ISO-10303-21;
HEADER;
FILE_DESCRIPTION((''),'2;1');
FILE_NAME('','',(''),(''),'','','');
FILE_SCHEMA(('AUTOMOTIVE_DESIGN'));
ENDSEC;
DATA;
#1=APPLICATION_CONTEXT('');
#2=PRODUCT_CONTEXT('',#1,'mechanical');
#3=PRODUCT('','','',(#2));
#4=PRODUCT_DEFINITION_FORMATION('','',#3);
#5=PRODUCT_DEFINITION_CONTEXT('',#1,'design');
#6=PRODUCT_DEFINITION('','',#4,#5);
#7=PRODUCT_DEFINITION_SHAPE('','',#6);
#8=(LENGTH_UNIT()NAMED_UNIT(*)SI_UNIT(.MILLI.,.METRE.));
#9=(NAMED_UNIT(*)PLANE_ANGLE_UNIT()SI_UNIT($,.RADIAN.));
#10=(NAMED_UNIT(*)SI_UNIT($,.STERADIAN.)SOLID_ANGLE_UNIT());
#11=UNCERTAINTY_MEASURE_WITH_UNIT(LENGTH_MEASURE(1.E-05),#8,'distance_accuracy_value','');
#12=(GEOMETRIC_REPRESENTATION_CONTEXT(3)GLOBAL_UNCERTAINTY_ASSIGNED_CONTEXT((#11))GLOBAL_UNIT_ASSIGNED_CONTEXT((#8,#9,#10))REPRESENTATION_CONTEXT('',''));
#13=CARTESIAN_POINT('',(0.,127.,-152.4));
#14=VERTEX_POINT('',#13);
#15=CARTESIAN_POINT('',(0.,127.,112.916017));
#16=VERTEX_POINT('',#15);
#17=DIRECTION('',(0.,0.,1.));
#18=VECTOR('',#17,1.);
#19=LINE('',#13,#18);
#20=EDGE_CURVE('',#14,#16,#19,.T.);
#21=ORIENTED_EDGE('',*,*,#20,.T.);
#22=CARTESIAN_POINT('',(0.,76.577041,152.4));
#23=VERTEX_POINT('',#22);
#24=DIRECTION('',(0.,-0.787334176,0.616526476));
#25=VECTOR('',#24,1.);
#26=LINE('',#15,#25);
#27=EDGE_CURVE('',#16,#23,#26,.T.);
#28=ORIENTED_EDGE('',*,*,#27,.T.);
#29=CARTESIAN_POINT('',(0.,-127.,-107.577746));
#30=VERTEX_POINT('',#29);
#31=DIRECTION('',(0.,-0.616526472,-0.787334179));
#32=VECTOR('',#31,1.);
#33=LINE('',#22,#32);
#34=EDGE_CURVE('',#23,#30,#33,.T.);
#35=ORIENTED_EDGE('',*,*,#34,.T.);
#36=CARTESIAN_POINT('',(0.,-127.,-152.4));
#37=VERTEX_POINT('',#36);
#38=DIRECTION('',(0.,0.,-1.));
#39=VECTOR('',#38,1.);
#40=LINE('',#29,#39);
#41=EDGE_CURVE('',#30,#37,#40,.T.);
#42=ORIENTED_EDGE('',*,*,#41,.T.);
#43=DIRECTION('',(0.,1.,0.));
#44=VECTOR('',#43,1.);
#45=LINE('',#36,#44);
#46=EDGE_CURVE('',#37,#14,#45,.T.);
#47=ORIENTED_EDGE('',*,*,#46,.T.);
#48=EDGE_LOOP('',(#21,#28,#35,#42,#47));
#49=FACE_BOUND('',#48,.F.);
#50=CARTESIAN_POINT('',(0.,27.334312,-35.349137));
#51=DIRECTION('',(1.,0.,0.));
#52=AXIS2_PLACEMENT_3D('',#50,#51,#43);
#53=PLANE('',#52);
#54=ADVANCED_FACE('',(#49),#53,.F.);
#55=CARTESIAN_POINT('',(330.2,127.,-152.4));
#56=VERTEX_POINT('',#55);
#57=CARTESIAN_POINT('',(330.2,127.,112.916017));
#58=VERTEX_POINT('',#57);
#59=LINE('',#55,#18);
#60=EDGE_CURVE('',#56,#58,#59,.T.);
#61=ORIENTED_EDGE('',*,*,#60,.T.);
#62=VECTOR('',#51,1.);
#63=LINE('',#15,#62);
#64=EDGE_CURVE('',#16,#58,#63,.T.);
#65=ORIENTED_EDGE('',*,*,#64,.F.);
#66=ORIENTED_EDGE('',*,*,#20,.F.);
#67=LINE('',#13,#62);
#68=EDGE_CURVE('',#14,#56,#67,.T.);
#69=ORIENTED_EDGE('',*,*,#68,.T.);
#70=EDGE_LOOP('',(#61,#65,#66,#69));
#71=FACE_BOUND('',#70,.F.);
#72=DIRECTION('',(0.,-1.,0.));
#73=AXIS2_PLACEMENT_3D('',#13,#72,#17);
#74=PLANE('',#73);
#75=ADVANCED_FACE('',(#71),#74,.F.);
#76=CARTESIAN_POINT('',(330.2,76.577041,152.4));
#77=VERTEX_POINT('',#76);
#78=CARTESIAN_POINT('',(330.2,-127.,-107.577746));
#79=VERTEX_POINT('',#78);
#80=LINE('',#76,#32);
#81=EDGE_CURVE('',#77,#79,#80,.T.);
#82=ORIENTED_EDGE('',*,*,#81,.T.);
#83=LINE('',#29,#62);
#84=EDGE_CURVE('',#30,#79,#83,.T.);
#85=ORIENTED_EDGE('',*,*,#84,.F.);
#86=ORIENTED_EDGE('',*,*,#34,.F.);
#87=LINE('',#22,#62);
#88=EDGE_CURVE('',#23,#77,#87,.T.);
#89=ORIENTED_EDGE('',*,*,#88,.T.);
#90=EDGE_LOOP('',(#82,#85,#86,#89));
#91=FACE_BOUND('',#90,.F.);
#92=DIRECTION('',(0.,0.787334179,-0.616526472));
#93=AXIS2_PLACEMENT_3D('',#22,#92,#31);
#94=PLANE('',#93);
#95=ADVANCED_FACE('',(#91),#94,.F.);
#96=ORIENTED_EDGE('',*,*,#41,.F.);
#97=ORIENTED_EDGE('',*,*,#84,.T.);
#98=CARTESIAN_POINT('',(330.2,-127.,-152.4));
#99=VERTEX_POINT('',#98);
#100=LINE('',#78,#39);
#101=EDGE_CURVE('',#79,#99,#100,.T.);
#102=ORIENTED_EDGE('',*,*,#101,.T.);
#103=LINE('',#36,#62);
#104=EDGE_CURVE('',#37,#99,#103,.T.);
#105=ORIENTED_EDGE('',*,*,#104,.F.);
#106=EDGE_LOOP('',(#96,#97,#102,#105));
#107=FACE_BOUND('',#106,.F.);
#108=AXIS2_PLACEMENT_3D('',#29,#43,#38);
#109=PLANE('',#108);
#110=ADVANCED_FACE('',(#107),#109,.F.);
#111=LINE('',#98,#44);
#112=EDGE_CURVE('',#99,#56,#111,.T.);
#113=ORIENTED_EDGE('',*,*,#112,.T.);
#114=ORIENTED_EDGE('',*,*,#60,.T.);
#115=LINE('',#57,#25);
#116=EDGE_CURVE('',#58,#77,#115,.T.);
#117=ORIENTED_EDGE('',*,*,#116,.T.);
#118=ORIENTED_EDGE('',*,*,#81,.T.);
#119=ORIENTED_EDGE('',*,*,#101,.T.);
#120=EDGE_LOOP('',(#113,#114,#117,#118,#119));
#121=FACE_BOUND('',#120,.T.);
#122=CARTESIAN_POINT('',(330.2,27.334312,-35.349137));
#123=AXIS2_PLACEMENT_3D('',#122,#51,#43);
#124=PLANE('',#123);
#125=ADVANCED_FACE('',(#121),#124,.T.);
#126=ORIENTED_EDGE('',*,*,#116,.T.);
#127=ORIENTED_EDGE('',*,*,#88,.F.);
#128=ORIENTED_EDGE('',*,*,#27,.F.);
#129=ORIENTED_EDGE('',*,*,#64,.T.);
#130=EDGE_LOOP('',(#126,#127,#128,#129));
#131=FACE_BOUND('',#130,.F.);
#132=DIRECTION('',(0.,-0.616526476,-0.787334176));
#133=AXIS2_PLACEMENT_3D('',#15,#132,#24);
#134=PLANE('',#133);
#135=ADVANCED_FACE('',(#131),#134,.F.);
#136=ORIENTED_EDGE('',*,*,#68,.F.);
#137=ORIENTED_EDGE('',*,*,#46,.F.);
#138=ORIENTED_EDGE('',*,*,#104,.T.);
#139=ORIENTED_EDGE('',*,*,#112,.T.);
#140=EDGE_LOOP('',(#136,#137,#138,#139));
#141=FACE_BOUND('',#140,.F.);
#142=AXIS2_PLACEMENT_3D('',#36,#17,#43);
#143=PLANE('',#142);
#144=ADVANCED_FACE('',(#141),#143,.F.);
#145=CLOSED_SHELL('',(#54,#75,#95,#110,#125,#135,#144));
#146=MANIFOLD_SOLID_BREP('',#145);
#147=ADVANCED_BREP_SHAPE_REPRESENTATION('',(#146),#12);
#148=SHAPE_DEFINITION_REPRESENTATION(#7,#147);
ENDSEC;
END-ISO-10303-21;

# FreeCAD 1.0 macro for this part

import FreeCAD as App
import Part
import Sketcher

V = App.Vector
Q = App.Units.Quantity

doc = App.newDocument("Part")
params = doc.addObject("Spreadsheet::Sheet", "Params")
for row, (alias, value) in enumerate([
    ("sketch1_width", "10 in"),
    ("sketch1_length", "13 in"),
    ("pad1_length", "13 in"),
], start=1):
    params.set(f"A{row}", alias)
    params.set(f"B{row}", "=" + value)
    params.setAlias(f"B{row}", alias)

body = doc.addObject("PartDesign::Body", "Body")

sketch1 = body.newObject("Sketcher::SketchObject", "Sketch")
sketch1.AttachmentSupport = (doc.getObject("YZ_Plane"), [""])
sketch1.MapMode = "FlatFace"
sketch1.addGeometry(Part.LineSegment(V(76.577041, 152.4, 0), V(-127, -107.577746, 0)), False)
sketch1.addGeometry(Part.LineSegment(V(-127, -107.577746, 0), V(-127, -152.4, 0)), False)
sketch1.addGeometry(Part.LineSegment(V(-127, -152.4, 0), V(127, -152.4, 0)), False)
sketch1.addGeometry(Part.LineSegment(V(127, -152.4, 0), V(127, 112.916017, 0)), False)
sketch1.addGeometry(Part.LineSegment(V(127, 112.916017, 0), V(76.577041, 152.4, 0)), False)
sketch1.addConstraint(Sketcher.Constraint("Coincident", 0, 2, 1, 1))
sketch1.addConstraint(Sketcher.Constraint("Coincident", 1, 2, 2, 1))
sketch1.addConstraint(Sketcher.Constraint("Coincident", 2, 2, 3, 1))
sketch1.addConstraint(Sketcher.Constraint("Coincident", 3, 2, 4, 1))
sketch1.addConstraint(Sketcher.Constraint("Coincident", 4, 2, 0, 1))
sketch1.addConstraint(Sketcher.Constraint("Vertical", 1))
sketch1.addConstraint(Sketcher.Constraint("Horizontal", 2))
sketch1.addConstraint(Sketcher.Constraint("Vertical", 3))
sketch1.addConstraint(Sketcher.Constraint("Perpendicular", 0, 4))
sketch1.addConstraint(Sketcher.Constraint("DistanceX", 2, 1, 2, 2, Q("10 in")))
sketch1.addConstraint(Sketcher.Constraint("Distance", 0, Q("13 in")))
sketch1.addConstraint(Sketcher.Constraint("DistanceX", 0, 2, -1, 1, Q("5 in")))
sketch1.addConstraint(Sketcher.Constraint("DistanceY", 1, 2, -1, 1, Q("6 in")))
sketch1.addConstraint(Sketcher.Constraint("DistanceY", -1, 1, 4, 2, Q("6 in")))
sketch1.addConstraint(Sketcher.Constraint("Distance", 4, 64.04264))
sketch1.setExpression("Constraints[9]", "Params.sketch1_width")
sketch1.setExpression("Constraints[10]", "Params.sketch1_length")
pad1 = body.newObject("PartDesign::Pad", "Pad")
pad1.Profile = sketch1
pad1.setExpression("Length", "Params.pad1_length")

doc.recompute()
